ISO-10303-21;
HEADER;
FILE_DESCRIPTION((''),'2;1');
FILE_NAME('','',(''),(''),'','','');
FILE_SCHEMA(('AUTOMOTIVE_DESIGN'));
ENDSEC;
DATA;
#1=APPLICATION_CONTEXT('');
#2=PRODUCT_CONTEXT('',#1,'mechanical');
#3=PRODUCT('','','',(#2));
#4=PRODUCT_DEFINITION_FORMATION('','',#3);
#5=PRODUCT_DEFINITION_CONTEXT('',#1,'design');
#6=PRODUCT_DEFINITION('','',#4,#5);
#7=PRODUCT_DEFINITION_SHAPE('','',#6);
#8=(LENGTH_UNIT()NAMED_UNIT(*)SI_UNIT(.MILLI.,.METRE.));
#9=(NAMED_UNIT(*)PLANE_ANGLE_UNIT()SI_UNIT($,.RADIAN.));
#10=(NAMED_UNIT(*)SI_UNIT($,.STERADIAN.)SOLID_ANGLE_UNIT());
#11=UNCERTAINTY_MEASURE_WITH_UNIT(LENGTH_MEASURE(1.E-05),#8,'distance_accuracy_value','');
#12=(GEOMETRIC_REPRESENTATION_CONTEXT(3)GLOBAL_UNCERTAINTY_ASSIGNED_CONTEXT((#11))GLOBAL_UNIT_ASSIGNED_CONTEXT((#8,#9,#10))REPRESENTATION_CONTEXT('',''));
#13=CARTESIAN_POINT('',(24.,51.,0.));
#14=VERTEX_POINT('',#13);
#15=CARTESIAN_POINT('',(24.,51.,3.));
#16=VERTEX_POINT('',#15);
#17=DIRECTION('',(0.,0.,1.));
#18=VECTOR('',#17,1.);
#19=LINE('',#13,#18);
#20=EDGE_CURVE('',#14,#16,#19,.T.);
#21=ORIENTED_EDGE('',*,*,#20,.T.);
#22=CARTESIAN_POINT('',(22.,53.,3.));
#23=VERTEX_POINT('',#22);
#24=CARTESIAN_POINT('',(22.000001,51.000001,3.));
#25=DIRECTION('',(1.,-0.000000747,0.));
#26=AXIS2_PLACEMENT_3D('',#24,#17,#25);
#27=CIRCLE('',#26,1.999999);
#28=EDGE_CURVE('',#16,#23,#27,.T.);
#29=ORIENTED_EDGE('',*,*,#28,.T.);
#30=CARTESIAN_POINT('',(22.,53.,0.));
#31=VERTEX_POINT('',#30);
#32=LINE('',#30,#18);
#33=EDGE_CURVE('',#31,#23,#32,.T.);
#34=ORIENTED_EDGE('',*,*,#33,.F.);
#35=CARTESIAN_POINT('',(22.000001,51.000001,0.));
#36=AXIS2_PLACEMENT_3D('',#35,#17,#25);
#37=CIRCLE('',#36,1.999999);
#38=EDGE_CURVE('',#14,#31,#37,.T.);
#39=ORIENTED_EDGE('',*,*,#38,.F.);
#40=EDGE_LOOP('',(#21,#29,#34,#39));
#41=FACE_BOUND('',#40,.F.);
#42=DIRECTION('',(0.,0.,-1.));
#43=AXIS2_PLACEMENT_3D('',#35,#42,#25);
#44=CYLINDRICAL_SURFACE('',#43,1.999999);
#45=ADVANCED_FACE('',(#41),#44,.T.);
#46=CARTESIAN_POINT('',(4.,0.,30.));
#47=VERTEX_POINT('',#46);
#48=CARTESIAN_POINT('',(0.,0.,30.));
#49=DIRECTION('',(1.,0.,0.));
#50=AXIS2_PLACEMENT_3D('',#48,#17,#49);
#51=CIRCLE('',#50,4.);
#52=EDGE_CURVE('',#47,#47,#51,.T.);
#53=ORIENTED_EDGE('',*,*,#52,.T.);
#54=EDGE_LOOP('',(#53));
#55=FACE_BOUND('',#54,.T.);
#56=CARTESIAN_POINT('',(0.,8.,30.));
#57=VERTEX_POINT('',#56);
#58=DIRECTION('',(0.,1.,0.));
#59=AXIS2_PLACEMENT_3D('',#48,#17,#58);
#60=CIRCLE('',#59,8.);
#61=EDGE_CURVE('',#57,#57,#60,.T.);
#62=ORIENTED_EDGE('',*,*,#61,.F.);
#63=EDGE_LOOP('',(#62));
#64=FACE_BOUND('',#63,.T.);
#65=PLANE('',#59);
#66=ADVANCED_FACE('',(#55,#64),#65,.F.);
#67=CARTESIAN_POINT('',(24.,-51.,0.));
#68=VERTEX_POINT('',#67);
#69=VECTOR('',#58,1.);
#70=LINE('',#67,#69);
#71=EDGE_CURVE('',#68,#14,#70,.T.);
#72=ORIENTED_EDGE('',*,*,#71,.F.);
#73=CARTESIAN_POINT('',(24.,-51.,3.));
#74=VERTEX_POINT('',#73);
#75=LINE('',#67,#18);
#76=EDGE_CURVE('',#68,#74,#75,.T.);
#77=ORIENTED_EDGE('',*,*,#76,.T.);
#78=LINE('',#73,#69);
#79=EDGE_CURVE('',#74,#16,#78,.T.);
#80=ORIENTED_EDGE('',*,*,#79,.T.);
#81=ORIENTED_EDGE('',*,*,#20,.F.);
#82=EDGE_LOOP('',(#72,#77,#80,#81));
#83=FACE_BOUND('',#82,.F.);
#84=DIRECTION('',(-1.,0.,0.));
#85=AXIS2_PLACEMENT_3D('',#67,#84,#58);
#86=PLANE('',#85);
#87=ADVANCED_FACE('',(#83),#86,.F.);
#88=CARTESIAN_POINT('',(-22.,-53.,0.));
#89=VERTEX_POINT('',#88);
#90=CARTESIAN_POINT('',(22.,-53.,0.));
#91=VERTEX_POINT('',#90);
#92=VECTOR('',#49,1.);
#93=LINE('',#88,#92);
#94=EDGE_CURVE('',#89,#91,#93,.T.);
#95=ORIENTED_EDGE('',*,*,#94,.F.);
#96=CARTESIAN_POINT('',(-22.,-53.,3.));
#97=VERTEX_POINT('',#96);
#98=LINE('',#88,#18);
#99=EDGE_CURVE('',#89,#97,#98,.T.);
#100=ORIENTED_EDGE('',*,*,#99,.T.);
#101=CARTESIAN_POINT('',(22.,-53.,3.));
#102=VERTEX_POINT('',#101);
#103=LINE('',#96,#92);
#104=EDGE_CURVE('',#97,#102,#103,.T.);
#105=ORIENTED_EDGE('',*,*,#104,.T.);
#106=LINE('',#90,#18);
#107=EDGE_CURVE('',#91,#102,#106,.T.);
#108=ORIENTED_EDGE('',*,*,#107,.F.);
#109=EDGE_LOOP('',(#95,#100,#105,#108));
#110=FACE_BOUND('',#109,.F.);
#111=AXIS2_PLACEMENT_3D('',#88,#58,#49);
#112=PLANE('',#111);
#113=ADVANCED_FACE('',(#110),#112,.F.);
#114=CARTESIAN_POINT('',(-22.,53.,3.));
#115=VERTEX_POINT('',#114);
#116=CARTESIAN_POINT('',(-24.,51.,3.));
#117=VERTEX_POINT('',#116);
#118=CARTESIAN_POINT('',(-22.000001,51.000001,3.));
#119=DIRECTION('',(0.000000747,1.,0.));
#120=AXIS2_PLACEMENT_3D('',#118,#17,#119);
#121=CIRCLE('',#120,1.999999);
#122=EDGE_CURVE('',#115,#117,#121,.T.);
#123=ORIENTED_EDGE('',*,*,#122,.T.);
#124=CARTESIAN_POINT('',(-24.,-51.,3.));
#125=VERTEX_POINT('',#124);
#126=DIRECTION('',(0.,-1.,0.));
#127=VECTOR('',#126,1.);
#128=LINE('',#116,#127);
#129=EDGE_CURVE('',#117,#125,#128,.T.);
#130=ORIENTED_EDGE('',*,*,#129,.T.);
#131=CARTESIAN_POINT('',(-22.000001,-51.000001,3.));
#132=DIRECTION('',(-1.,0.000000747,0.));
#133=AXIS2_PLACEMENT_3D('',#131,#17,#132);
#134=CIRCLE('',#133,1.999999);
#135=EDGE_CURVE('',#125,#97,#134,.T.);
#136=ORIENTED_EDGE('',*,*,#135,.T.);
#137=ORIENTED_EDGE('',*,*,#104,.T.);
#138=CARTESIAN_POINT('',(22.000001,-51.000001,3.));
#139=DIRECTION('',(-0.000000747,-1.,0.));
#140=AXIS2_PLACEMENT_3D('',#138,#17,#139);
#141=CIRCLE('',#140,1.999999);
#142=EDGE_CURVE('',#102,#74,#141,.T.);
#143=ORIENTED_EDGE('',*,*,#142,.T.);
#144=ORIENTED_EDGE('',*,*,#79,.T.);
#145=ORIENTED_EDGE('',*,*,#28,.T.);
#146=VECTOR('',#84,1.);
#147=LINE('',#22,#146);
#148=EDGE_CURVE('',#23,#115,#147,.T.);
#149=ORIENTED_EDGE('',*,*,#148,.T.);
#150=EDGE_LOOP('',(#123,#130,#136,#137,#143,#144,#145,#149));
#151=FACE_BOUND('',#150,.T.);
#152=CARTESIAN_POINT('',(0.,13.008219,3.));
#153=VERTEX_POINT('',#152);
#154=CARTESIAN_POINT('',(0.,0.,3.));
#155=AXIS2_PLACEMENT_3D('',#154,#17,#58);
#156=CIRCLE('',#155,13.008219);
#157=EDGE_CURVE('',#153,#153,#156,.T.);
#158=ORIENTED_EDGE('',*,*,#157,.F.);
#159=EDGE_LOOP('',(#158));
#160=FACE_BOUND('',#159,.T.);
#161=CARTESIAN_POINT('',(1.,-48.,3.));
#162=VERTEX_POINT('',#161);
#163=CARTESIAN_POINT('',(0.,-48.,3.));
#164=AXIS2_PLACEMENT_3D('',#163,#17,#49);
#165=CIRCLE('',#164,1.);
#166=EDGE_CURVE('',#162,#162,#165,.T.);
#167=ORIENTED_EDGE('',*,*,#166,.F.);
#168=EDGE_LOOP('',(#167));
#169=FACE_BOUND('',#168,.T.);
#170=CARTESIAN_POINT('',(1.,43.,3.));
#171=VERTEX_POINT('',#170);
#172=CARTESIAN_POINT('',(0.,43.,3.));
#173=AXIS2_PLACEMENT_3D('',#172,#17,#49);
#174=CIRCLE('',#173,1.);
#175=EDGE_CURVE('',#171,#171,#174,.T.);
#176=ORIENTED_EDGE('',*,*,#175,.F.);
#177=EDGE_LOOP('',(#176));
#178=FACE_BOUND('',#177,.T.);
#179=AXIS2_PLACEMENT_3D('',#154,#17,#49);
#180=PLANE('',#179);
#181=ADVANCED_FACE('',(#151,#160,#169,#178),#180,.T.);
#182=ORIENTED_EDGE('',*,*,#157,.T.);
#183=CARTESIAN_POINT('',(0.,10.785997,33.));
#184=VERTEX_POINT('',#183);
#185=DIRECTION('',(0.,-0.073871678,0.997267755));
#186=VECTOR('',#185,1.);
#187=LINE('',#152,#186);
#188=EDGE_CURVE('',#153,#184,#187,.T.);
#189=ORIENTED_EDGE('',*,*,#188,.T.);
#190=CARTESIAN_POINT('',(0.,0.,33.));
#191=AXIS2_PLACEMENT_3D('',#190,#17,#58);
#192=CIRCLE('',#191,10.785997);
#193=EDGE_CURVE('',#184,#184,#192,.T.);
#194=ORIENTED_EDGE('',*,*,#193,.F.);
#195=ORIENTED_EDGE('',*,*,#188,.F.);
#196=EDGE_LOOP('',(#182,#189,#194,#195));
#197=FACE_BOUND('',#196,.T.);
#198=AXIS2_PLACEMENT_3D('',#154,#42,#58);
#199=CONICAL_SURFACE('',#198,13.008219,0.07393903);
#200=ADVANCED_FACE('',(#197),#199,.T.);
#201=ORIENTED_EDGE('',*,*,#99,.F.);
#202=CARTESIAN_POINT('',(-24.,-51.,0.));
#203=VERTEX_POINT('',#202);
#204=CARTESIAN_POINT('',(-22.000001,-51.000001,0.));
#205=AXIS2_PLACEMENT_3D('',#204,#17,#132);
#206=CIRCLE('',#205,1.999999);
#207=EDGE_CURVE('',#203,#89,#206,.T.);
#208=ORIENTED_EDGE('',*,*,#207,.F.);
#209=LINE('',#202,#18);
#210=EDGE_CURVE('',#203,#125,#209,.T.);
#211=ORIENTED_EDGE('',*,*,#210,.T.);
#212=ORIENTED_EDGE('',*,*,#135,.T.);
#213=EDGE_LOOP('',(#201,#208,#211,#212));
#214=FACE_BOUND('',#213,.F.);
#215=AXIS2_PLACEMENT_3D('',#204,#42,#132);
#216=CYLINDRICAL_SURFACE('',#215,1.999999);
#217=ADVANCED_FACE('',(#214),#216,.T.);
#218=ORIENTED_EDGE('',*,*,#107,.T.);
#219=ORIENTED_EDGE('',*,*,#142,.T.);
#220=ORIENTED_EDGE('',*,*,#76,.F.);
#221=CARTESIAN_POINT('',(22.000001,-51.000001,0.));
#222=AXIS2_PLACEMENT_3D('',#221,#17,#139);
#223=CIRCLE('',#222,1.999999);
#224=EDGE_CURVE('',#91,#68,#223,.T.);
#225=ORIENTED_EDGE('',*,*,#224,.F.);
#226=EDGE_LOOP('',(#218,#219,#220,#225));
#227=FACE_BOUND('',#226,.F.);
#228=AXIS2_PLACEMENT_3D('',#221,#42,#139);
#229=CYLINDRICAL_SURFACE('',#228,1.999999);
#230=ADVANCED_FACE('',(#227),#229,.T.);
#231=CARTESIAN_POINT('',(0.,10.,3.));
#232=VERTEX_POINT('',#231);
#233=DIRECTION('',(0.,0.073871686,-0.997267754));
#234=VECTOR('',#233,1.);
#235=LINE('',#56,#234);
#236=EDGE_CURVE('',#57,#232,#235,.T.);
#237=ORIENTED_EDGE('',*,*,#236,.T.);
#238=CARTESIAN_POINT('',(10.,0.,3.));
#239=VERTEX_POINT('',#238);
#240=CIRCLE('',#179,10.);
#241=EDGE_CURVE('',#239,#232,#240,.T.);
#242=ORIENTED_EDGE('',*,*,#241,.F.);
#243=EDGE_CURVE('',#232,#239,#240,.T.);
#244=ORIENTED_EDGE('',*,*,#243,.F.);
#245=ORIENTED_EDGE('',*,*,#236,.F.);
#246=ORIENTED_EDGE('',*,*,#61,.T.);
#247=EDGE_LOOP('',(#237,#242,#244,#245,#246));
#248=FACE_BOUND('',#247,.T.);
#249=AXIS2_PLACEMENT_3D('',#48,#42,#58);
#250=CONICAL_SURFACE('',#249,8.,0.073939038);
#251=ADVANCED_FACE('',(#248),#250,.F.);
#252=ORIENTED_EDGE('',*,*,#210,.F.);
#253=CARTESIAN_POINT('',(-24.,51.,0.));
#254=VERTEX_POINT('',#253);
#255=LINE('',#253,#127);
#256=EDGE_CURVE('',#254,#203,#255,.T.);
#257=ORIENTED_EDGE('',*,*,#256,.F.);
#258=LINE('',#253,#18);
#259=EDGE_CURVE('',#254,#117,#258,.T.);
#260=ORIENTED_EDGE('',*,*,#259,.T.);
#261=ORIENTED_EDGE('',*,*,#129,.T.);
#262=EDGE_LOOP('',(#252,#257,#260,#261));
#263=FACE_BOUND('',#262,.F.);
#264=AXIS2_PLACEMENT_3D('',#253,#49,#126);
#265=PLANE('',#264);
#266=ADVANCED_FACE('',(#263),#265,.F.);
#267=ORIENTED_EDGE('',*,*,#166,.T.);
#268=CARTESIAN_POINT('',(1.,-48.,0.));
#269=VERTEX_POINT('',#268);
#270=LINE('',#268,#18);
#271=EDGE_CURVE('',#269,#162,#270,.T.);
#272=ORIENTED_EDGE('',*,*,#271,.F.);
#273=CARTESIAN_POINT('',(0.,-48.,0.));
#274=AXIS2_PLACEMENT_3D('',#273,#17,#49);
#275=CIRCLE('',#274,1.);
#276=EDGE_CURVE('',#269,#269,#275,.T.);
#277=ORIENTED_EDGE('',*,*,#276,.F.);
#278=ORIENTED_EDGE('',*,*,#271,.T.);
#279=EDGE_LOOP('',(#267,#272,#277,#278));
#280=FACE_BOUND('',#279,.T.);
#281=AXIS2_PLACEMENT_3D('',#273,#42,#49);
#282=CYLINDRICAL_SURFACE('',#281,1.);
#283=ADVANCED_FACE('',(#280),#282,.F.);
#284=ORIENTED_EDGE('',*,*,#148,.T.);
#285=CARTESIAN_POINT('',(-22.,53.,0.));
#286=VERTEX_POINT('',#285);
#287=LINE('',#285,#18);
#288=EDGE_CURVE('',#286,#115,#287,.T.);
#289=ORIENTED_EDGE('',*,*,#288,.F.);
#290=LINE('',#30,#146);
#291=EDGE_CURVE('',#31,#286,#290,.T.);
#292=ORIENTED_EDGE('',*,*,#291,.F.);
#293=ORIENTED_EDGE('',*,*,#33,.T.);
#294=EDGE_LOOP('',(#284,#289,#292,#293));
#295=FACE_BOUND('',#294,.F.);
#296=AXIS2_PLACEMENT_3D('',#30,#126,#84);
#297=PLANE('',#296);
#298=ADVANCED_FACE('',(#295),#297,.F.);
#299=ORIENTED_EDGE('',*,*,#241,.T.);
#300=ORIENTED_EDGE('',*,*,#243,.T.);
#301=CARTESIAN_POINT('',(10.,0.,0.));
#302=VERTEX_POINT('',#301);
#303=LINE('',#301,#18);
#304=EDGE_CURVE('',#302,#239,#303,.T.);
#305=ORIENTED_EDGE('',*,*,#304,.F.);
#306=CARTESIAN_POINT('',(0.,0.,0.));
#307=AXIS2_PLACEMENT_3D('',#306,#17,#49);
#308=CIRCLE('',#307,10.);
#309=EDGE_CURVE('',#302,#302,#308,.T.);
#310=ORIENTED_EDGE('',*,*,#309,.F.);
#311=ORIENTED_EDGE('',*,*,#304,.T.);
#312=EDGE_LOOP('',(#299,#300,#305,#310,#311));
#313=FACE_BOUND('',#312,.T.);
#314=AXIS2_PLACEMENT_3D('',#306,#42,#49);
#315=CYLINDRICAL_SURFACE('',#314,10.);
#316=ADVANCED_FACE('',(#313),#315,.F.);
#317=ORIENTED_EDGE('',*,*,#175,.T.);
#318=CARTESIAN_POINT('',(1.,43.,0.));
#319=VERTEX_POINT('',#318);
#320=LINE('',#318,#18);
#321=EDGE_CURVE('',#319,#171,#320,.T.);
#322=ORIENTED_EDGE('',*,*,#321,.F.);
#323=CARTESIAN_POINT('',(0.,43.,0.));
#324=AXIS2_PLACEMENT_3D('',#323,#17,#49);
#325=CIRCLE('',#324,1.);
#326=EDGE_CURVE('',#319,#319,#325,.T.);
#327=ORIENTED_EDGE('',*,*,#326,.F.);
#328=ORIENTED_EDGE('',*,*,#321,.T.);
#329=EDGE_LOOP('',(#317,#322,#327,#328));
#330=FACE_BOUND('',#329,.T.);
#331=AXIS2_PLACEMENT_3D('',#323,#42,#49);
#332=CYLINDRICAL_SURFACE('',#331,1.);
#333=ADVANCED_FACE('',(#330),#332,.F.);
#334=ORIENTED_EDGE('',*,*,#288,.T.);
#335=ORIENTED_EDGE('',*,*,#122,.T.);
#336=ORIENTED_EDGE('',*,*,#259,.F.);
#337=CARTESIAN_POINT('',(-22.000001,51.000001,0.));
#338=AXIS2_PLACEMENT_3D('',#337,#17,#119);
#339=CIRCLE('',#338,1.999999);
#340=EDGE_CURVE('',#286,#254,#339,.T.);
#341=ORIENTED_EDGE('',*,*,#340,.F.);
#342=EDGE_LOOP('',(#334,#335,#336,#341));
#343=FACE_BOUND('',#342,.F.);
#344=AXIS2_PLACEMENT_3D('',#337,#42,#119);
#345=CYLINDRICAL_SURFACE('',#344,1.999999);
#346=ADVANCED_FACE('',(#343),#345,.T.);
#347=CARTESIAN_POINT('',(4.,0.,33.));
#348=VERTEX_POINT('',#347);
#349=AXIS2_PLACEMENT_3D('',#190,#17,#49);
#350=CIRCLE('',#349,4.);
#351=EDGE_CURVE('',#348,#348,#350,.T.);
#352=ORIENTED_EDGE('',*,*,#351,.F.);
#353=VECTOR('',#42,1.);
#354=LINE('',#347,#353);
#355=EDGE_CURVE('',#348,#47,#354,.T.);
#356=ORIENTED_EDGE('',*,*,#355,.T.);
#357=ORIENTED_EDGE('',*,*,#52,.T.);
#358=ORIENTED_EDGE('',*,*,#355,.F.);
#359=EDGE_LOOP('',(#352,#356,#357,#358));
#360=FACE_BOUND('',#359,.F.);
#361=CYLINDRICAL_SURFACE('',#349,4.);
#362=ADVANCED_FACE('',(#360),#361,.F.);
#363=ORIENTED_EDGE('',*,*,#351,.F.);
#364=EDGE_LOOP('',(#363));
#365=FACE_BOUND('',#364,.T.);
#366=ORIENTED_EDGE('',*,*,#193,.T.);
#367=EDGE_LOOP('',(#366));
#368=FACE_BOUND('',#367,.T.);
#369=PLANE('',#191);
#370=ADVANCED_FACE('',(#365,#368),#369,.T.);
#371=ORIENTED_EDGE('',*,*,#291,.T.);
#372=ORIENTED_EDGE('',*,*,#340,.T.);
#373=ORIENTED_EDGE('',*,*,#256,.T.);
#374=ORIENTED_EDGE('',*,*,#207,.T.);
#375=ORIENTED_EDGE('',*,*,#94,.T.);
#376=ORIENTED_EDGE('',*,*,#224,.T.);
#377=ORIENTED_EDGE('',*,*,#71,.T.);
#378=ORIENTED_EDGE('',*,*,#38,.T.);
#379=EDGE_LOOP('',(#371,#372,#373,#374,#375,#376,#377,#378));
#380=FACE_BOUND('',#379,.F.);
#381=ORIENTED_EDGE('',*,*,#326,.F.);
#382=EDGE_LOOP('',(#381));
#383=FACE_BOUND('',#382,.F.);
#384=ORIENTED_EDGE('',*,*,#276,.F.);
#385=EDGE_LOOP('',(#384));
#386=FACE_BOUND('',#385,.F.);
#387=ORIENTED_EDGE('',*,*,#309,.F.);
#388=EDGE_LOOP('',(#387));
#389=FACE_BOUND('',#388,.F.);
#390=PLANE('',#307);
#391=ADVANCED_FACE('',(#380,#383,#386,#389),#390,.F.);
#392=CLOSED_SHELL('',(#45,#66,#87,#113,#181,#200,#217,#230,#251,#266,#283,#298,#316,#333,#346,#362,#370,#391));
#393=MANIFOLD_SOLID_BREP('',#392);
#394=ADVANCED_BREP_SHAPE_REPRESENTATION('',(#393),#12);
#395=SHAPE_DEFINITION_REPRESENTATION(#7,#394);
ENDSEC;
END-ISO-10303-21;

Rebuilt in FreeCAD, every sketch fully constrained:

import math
import FreeCAD as App
import Part
import Sketcher
from FreeCAD import Vector

doc = App.newDocument("Part")
body = doc.addObject("PartDesign::Body", "Body")

# Sketch on XY plane
sketch1 = doc.addObject("Sketcher::SketchObject", "Sketch")
body.addObject(sketch1)
sketch1.AttachmentSupport = (doc.XY_Plane, [""])
sketch1.MapMode = "FlatFace"
sketch1.addGeometry(Part.LineSegment(Vector(22, 53, 0), Vector(-22, 53, 0)), False)
sketch1.addGeometry(Part.ArcOfCircle(Part.Circle(Vector(-22, 51, 0), Vector(0, 0, 1), 2), math.radians(90), math.radians(180)), False)
sketch1.addGeometry(Part.LineSegment(Vector(-24, 51, 0), Vector(-24, -51, 0)), False)
sketch1.addGeometry(Part.ArcOfCircle(Part.Circle(Vector(-22, -51, 0), Vector(0, 0, 1), 2), math.radians(180), math.radians(270)), False)
sketch1.addGeometry(Part.LineSegment(Vector(-22, -53, 0), Vector(22, -53, 0)), False)
sketch1.addGeometry(Part.ArcOfCircle(Part.Circle(Vector(22, -51, 0), Vector(0, 0, 1), 2), math.radians(-90), math.radians(0)), False)
sketch1.addGeometry(Part.LineSegment(Vector(24, -51, 0), Vector(24, 51, 0)), False)
sketch1.addGeometry(Part.ArcOfCircle(Part.Circle(Vector(22, 51, 0), Vector(0, 0, 1), 2), math.radians(0), math.radians(90)), False)
sketch1.addGeometry(Part.Circle(Vector(0, -48, 0), Vector(0, 0, 1), 1), False)
sketch1.addGeometry(Part.Circle(Vector(0, 0, 0), Vector(0, 0, 1), 10), False)
sketch1.addGeometry(Part.Circle(Vector(0, 43, 0), Vector(0, 0, 1), 1), False)
sketch1.addConstraint(Sketcher.Constraint("Tangent", 0, 2, 1, 1))
sketch1.addConstraint(Sketcher.Constraint("Tangent", 1, 2, 2, 1))
sketch1.addConstraint(Sketcher.Constraint("Tangent", 2, 2, 3, 1))
sketch1.addConstraint(Sketcher.Constraint("Tangent", 3, 2, 4, 1))
sketch1.addConstraint(Sketcher.Constraint("Tangent", 4, 2, 5, 1))
sketch1.addConstraint(Sketcher.Constraint("Tangent", 5, 2, 6, 1))
sketch1.addConstraint(Sketcher.Constraint("Tangent", 6, 2, 7, 1))
sketch1.addConstraint(Sketcher.Constraint("Tangent", 7, 2, 0, 1))
sketch1.addConstraint(Sketcher.Constraint("Horizontal", 0))
sketch1.addConstraint(Sketcher.Constraint("Vertical", 2))
sketch1.addConstraint(Sketcher.Constraint("Horizontal", 4))
sketch1.addConstraint(Sketcher.Constraint("Vertical", 6))
sketch1.addConstraint(Sketcher.Constraint("Coincident", 9, 3, -1, 1))
sketch1.addConstraint(Sketcher.Constraint("Equal", 1, 3))
sketch1.addConstraint(Sketcher.Constraint("Equal", 3, 5))
sketch1.addConstraint(Sketcher.Constraint("Equal", 5, 7))
sketch1.addConstraint(Sketcher.Constraint("Equal", 8, 10))
sketch1.addConstraint(Sketcher.Constraint("Symmetric", 1, 3, 5, 3, -1, 1))
sketch1.addConstraint(Sketcher.Constraint("PointOnObject", 8, 3, -2))
sketch1.addConstraint(Sketcher.Constraint("PointOnObject", 10, 3, -2))
sketch1.addConstraint(Sketcher.Constraint("Diameter", 8, 2.0))
sketch1.addConstraint(Sketcher.Constraint("Diameter", 9, 20.0))
sketch1.addConstraint(Sketcher.Constraint("Radius", 1, 1.999999))
sketch1.addConstraint(Sketcher.Constraint("DistanceX", 0, 2, 0, 1, 44.0))
sketch1.addConstraint(Sketcher.Constraint("DistanceY", 2, 2, 2, 1, 102.0))
sketch1.addConstraint(Sketcher.Constraint("DistanceY", 8, 3, -1, 1, 48.0))
sketch1.addConstraint(Sketcher.Constraint("DistanceY", -1, 1, 10, 3, 43.0))
pad1 = doc.addObject("PartDesign::Pad", "Pad")
body.addObject(pad1)
pad1.Profile = sketch1
pad1.Length = 3

# Sketch on YZ plane
sketch2 = doc.addObject("Sketcher::SketchObject", "Sketch001")
body.addObject(sketch2)
sketch2.AttachmentSupport = (doc.YZ_Plane, [""])
sketch2.MapMode = "FlatFace"
sketch2.addGeometry(Part.LineSegment(Vector(8, 30, 0), Vector(10, 3, 0)), False)
sketch2.addGeometry(Part.LineSegment(Vector(10, 3, 0), Vector(13, 3, 0)), False)
sketch2.addGeometry(Part.LineSegment(Vector(13, 3, 0), Vector(10.8, 33, 0)), False)
sketch2.addGeometry(Part.LineSegment(Vector(10.8, 33, 0), Vector(0, 33, 0)), False)
sketch2.addGeometry(Part.LineSegment(Vector(0, 33, 0), Vector(0, 30, 0)), False)
sketch2.addGeometry(Part.LineSegment(Vector(0, 30, 0), Vector(8, 30, 0)), False)
sketch2.addConstraint(Sketcher.Constraint("Coincident", 0, 2, 1, 1))
sketch2.addConstraint(Sketcher.Constraint("Coincident", 1, 2, 2, 1))
sketch2.addConstraint(Sketcher.Constraint("Coincident", 2, 2, 3, 1))
sketch2.addConstraint(Sketcher.Constraint("Coincident", 3, 2, 4, 1))
sketch2.addConstraint(Sketcher.Constraint("Coincident", 4, 2, 5, 1))
sketch2.addConstraint(Sketcher.Constraint("Coincident", 5, 2, 0, 1))
sketch2.addConstraint(Sketcher.Constraint("Horizontal", 1))
sketch2.addConstraint(Sketcher.Constraint("Horizontal", 3))
sketch2.addConstraint(Sketcher.Constraint("Vertical", 4))
sketch2.addConstraint(Sketcher.Constraint("Horizontal", 5))
sketch2.addConstraint(Sketcher.Constraint("PointOnObject", 3, 2, -2))
sketch2.addConstraint(Sketcher.Constraint("Parallel", 0, 2))
sketch2.addConstraint(Sketcher.Constraint("DistanceX", 5, 1, 5, 2, 8.0))
sketch2.addConstraint(Sketcher.Constraint("DistanceY", 4, 2, 4, 1, 3.0))
sketch2.addConstraint(Sketcher.Constraint("DistanceX", -1, 1, 0, 2, 10.0))
sketch2.addConstraint(Sketcher.Constraint("DistanceY", -1, 1, 0, 2, 3.0))
sketch2.addConstraint(Sketcher.Constraint("DistanceY", -1, 1, 2, 2, 33.0))
sketch2.addConstraint(Sketcher.Constraint("DistanceX", 1, 1, 1, 2, 3.008219))
revolution = doc.addObject("PartDesign::Revolution", "Revolution")
body.addObject(revolution)
revolution.Profile = sketch2
revolution.ReferenceAxis = (sketch2, ["V_Axis"])
revolution.Angle = 360

# Sketch on XY plane
sketch3 = doc.addObject("Sketcher::SketchObject", "Sketch002")
body.addObject(sketch3)
sketch3.AttachmentSupport = (doc.XY_Plane, [""])
sketch3.MapMode = "FlatFace"
sketch3.AttachmentOffset = App.Placement(Vector(0, 0, 33), App.Rotation())
sketch3.addGeometry(Part.Circle(Vector(0, 0, 0), Vector(0, 0, 1), 4), False)
sketch3.addConstraint(Sketcher.Constraint("Coincident", 0, 3, -1, 1))
sketch3.addConstraint(Sketcher.Constraint("Diameter", 0, 8.0))
pocket1 = doc.addObject("PartDesign::Pocket", "Pocket")
body.addObject(pocket1)
pocket1.Profile = sketch3
pocket1.Type = "ThroughAll"

doc.recompute()
